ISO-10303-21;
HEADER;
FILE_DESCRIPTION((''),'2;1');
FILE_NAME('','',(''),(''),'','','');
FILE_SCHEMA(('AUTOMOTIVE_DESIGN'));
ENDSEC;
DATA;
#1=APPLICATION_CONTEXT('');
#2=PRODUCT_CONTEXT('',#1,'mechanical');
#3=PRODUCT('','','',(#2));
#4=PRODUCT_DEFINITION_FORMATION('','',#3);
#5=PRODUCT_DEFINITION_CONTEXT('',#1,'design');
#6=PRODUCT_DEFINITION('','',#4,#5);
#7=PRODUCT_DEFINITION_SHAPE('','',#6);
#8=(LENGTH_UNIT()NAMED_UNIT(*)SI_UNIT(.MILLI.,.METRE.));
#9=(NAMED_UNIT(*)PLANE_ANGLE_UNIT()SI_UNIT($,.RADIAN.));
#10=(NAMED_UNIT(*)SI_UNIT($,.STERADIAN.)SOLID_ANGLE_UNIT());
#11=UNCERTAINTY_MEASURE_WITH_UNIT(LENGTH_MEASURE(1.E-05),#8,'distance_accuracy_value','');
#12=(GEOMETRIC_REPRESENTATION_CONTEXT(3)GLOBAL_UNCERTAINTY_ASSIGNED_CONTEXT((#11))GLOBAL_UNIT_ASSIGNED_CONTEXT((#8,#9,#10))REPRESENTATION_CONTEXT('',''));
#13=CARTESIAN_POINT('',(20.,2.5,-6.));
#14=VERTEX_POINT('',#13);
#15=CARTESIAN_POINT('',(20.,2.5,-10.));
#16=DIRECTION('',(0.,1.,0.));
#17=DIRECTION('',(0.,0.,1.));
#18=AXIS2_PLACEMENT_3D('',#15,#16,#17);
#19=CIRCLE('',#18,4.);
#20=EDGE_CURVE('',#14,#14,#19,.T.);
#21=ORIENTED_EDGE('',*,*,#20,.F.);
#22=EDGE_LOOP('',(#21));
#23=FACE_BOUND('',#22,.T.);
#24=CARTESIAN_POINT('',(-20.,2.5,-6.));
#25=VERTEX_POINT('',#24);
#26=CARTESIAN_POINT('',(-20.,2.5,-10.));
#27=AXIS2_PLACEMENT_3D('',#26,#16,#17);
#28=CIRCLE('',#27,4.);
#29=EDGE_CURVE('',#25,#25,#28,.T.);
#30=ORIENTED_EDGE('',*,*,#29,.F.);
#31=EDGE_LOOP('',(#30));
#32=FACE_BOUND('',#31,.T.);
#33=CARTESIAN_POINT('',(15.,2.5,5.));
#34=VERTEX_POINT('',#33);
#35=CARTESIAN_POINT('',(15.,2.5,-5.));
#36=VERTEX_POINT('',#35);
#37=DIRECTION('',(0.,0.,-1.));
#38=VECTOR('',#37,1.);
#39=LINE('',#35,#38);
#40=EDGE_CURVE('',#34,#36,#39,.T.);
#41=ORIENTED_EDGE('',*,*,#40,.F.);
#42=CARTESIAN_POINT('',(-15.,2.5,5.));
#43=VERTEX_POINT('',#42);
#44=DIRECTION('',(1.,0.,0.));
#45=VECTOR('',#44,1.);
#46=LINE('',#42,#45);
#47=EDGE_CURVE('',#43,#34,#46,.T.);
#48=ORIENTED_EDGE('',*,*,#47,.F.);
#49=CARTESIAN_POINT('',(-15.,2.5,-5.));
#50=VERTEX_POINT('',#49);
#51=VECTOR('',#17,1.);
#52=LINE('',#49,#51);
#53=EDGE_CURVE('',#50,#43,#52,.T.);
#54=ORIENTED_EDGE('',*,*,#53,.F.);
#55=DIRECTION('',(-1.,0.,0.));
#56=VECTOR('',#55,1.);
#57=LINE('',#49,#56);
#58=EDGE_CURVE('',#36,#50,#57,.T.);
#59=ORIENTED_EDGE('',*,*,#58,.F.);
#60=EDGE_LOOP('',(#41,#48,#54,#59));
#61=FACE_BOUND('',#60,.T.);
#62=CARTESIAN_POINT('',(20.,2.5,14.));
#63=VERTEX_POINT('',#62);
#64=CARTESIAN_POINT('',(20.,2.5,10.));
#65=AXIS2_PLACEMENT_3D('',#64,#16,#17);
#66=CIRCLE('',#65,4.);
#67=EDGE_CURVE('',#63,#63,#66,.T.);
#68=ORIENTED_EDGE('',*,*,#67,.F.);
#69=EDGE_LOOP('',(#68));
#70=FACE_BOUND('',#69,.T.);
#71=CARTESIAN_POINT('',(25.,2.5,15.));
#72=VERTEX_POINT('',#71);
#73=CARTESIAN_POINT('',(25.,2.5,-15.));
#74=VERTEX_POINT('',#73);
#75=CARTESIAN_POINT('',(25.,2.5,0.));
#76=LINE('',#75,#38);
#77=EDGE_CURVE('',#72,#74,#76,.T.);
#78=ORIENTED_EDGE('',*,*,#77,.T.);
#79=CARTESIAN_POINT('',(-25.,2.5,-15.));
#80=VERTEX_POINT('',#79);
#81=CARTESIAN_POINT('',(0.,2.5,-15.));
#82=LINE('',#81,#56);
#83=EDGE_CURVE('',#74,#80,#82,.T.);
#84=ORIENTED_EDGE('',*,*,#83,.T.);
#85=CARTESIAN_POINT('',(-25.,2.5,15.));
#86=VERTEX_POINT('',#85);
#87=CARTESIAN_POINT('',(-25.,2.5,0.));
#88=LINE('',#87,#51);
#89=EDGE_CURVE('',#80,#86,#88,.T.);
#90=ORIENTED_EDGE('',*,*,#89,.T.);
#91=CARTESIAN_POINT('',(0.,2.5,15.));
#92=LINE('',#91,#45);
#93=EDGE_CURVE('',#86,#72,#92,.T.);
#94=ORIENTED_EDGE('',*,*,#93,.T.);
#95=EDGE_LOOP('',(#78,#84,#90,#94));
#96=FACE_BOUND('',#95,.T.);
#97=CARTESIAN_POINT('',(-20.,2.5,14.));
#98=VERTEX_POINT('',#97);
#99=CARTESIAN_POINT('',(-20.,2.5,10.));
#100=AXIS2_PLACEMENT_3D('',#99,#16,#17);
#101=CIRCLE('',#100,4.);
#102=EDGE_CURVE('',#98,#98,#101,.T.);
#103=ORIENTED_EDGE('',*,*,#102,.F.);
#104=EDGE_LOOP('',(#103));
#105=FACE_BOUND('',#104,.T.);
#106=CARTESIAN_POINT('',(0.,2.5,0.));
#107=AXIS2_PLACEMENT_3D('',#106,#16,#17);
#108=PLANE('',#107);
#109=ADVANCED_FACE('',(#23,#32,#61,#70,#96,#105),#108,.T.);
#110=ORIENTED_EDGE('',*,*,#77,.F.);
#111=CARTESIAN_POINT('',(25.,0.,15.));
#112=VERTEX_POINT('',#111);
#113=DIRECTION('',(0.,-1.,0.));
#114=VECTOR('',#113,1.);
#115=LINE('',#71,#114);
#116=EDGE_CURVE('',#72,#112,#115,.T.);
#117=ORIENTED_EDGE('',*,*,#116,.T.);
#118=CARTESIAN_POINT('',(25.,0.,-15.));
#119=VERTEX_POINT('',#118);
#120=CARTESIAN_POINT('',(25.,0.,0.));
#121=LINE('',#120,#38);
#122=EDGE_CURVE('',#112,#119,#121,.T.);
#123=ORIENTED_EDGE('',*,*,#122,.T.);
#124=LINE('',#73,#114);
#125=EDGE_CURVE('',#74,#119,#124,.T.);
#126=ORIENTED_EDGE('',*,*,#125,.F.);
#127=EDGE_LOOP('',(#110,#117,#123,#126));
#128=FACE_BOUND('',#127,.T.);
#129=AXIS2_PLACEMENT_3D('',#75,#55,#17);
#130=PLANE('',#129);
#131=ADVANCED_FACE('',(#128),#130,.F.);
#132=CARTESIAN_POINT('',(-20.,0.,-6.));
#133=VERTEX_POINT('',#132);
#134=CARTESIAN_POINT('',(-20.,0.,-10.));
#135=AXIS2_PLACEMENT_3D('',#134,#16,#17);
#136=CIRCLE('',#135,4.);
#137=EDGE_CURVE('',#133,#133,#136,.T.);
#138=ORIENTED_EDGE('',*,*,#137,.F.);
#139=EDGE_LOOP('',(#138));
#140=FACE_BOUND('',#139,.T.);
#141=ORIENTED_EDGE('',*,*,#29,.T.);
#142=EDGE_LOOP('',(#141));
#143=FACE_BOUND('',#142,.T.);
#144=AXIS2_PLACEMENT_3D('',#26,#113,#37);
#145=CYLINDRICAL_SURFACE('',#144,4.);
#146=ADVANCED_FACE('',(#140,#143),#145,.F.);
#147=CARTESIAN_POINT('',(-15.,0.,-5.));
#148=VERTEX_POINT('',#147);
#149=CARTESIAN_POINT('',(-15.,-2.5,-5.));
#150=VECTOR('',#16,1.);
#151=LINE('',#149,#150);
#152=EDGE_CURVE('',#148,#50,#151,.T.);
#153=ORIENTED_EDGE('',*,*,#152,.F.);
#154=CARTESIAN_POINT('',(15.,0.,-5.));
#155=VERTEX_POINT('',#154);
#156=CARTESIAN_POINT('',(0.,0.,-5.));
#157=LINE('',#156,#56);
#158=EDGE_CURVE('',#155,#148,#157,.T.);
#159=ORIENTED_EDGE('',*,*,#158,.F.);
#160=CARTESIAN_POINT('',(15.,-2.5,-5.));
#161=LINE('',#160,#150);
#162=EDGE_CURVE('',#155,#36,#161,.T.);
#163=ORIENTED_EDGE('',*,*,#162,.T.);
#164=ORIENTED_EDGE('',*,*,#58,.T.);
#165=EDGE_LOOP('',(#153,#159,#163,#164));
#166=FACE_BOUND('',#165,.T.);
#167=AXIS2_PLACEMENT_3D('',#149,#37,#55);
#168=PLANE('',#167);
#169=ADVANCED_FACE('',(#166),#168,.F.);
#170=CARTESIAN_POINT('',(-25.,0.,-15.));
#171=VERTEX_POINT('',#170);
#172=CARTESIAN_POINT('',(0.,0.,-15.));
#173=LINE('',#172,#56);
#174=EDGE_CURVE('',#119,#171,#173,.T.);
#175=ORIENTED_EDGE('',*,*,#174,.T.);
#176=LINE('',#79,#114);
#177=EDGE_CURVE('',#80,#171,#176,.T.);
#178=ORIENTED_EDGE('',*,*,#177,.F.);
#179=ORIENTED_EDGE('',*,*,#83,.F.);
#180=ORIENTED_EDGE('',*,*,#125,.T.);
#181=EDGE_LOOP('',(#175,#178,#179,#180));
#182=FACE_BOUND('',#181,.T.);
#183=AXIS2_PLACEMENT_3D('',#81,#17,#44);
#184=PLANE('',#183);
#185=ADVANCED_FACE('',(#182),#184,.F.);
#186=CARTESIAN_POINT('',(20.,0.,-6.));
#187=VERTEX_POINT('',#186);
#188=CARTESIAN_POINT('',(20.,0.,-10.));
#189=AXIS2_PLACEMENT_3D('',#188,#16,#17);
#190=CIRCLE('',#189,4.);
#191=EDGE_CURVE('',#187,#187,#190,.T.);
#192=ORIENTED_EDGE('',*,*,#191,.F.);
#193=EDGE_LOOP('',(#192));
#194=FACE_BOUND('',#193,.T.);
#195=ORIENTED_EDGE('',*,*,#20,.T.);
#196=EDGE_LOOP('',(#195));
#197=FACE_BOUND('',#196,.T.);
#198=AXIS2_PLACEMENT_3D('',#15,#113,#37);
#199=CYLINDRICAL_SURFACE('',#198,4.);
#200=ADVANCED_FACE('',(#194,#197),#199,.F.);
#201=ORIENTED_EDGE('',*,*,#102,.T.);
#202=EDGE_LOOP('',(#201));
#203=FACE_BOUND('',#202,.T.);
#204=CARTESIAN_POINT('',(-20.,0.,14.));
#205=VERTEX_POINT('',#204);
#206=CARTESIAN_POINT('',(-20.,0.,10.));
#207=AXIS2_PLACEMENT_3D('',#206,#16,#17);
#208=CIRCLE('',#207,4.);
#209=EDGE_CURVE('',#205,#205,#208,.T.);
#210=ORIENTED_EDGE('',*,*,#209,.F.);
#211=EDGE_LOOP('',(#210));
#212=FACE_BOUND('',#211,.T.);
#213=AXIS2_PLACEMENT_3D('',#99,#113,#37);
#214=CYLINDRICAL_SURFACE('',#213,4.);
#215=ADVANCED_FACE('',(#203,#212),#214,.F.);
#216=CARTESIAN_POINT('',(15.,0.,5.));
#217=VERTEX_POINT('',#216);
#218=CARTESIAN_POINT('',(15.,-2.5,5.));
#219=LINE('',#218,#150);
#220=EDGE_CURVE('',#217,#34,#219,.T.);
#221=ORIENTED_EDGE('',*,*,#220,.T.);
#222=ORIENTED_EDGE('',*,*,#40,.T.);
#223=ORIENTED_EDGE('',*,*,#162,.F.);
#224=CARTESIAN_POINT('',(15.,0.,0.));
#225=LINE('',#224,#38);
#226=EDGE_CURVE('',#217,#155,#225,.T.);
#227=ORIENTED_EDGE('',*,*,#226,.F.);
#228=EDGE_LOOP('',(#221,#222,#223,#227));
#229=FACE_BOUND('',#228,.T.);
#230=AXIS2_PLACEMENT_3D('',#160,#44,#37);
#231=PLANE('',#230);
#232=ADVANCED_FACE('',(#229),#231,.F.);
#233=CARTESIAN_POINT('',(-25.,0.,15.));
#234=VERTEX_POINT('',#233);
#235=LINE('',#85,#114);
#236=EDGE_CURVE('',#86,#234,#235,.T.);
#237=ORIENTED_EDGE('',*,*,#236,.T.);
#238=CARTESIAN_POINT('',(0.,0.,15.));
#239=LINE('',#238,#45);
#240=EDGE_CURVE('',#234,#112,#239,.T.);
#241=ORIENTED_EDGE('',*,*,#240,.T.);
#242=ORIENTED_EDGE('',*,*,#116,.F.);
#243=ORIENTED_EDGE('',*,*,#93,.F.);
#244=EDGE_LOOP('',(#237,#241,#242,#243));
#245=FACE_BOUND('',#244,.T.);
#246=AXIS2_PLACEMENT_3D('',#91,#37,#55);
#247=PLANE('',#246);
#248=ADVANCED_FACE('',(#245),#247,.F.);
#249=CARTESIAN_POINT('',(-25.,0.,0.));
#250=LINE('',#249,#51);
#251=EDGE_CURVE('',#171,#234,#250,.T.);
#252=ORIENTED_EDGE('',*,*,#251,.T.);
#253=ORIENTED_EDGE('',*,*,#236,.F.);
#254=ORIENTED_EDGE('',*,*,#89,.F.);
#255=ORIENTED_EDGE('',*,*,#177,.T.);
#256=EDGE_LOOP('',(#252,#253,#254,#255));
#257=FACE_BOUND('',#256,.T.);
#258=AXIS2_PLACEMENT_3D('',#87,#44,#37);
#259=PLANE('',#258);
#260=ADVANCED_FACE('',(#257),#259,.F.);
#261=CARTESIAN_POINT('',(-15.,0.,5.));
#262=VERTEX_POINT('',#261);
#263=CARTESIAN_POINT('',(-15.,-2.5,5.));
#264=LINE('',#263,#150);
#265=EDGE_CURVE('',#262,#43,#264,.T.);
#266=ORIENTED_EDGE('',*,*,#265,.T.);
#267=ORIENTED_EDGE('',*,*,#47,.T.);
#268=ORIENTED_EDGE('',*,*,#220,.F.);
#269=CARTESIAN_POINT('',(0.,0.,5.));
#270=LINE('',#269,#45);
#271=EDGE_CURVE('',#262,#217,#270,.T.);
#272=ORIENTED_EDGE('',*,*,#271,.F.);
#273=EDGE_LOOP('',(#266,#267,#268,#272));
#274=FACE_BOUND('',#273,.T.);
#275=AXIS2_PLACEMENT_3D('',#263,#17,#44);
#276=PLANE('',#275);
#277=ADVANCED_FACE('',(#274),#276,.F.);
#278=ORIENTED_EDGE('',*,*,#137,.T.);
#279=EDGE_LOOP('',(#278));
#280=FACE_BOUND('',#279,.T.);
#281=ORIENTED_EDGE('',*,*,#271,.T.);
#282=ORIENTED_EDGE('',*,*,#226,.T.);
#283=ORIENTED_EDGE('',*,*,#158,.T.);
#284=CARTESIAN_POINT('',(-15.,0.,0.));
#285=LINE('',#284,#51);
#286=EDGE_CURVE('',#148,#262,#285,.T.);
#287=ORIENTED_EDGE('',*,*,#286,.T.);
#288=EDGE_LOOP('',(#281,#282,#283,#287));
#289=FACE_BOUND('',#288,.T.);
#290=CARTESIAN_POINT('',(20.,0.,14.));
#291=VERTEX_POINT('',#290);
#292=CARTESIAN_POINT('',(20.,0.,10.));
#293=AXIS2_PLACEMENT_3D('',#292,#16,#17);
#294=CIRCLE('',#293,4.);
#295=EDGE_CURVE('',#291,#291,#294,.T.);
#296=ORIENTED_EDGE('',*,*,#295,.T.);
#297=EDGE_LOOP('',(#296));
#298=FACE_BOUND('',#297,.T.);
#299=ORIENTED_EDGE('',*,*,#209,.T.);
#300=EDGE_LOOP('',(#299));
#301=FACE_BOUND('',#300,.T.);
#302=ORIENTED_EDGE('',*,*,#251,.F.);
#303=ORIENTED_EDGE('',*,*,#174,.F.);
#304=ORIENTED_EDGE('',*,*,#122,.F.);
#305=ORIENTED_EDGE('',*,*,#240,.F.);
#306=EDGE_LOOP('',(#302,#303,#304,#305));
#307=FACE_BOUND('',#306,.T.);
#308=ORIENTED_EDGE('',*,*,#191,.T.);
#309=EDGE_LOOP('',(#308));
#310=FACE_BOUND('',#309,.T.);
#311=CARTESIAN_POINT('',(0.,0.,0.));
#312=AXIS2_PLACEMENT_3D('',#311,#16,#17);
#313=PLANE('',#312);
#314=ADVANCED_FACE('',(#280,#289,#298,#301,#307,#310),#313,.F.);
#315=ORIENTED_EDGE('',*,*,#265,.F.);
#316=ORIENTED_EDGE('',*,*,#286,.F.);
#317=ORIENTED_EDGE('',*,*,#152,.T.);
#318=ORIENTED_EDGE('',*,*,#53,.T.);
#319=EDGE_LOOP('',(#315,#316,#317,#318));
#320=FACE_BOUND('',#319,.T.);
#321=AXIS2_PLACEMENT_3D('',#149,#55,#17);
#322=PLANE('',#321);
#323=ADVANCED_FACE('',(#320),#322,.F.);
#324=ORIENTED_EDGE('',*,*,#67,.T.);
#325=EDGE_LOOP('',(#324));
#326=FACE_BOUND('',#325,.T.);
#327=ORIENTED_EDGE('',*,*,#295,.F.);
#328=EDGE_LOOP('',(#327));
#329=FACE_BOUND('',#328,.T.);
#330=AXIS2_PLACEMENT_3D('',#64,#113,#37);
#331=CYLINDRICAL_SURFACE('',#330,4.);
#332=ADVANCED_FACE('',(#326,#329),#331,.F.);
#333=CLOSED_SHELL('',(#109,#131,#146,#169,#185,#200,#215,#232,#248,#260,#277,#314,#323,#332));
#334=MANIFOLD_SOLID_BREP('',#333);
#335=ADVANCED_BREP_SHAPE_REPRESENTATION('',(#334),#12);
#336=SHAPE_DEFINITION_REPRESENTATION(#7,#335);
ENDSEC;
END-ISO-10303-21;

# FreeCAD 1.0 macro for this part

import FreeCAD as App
import Part
import Sketcher
from FreeCAD import Vector
Q = App.Units.Quantity


def add_polygon(sketch, points):
    """Adds a closed chain of lines whose ends are joined by coincident constraints."""
    first, n = sketch.GeometryCount, len(points)
    for a, b in zip(points, points[1:] + points[:1]):
        sketch.addGeometry(Part.LineSegment(App.Vector(*a, 0), App.Vector(*b, 0)), False)
    for i in range(n):
        sketch.addConstraint(Sketcher.Constraint("Coincident", first + i, 2, first + (i + 1) % n, 1))

doc = App.newDocument("Part")
params = doc.addObject("Spreadsheet::Sheet", "Params")
for row, (alias, value) in enumerate([
    ("sketch1_diameter", "8 mm"),
    ("sketch1_width", "50 mm"),
    ("sketch1_height", "30 mm"),
    ("pad1_length", "2.5 mm"),
    ("sketch2_width", "30 mm"),
    ("sketch2_height", "10 mm"),
    ("pocket1_length", "5 mm"),
], start=1):
    params.set(f"A{row}", alias)
    params.set(f"B{row}", "=" + value)
    params.setAlias(f"B{row}", alias)

body = doc.addObject("PartDesign::Body", "Body")

# Sketch on XZ plane
sketch1 = body.newObject("Sketcher::SketchObject", "Sketch")
sketch1.AttachmentSupport = (doc.getObject("XZ_Plane"), [""])
sketch1.MapMode = "FlatFace"
add_polygon(sketch1, [(-25, -15), (-25, 15), (25, 15), (25, -15)])  # lines 0-3
sketch1.addGeometry(Part.Circle(Vector(-20, 10, 0), Vector(0, 0, 1), 4), False)  # 4
sketch1.addGeometry(Part.Circle(Vector(20, 10, 0), Vector(0, 0, 1), 4), False)  # 5
sketch1.addGeometry(Part.Circle(Vector(-20, -10, 0), Vector(0, 0, 1), 4), False)  # 6
sketch1.addGeometry(Part.Circle(Vector(20, -10, 0), Vector(0, 0, 1), 4), False)  # 7
sketch1.addConstraint([
    Sketcher.Constraint("Vertical", 0),
    Sketcher.Constraint("Horizontal", 1),
    Sketcher.Constraint("Vertical", 2),
    Sketcher.Constraint("Horizontal", 3),
    Sketcher.Constraint("Equal", 4, 5),
    Sketcher.Constraint("Equal", 5, 6),
    Sketcher.Constraint("Equal", 6, 7),
    Sketcher.Constraint("Symmetric", 5, 3, 6, 3, -1, 1),
    Sketcher.Constraint("Symmetric", 4, 3, 7, 3, -1, 1),
    Sketcher.Constraint("Symmetric", 0, 2, 2, 2, -1, 1),
    Sketcher.Constraint("Symmetric", 4, 3, 5, 3, -2),
    Sketcher.Constraint("Diameter", 4, Q("8 mm")),
    Sketcher.Constraint("DistanceX", 1, 1, 1, 2, Q("50 mm")),
    Sketcher.Constraint("DistanceY", 0, 1, 0, 2, Q("30 mm")),
    Sketcher.Constraint("DistanceX", 4, 3, -1, 1, Q("20 mm")),
    Sketcher.Constraint("DistanceY", -1, 1, 4, 3, Q("10 mm")),
])
sketch1.setExpression("Constraints[15]", "Params.sketch1_diameter")
sketch1.setExpression("Constraints[16]", "Params.sketch1_width")
sketch1.setExpression("Constraints[17]", "Params.sketch1_height")
pad1 = body.newObject("PartDesign::Pad", "Pad")
pad1.Profile = sketch1
pad1.setExpression("Length", "Params.pad1_length")
pad1.Reversed = True

# Sketch on XZ plane
sketch2 = body.newObject("Sketcher::SketchObject", "Sketch001")
sketch2.AttachmentSupport = (doc.getObject("XZ_Plane"), [""])
sketch2.MapMode = "FlatFace"
sketch2.AttachmentOffset = App.Placement(Vector(0, 0, -2.5), App.Rotation())
add_polygon(sketch2, [(-15, -5), (-15, 5), (15, 5), (15, -5)])  # lines 0-3
sketch2.addConstraint([
    Sketcher.Constraint("Vertical", 0),
    Sketcher.Constraint("Horizontal", 1),
    Sketcher.Constraint("Vertical", 2),
    Sketcher.Constraint("Horizontal", 3),
    Sketcher.Constraint("Symmetric", 0, 2, 2, 2, -1, 1),
    Sketcher.Constraint("DistanceX", 1, 1, 1, 2, Q("30 mm")),
    Sketcher.Constraint("DistanceY", 0, 1, 0, 2, Q("10 mm")),
])
sketch2.setExpression("Constraints[9]", "Params.sketch2_width")
sketch2.setExpression("Constraints[10]", "Params.sketch2_height")
pocket1 = body.newObject("PartDesign::Pocket", "Pocket")
pocket1.Profile = sketch2
pocket1.setExpression("Length", "Params.pocket1_length")
pocket1.Reversed = True

doc.recompute()
